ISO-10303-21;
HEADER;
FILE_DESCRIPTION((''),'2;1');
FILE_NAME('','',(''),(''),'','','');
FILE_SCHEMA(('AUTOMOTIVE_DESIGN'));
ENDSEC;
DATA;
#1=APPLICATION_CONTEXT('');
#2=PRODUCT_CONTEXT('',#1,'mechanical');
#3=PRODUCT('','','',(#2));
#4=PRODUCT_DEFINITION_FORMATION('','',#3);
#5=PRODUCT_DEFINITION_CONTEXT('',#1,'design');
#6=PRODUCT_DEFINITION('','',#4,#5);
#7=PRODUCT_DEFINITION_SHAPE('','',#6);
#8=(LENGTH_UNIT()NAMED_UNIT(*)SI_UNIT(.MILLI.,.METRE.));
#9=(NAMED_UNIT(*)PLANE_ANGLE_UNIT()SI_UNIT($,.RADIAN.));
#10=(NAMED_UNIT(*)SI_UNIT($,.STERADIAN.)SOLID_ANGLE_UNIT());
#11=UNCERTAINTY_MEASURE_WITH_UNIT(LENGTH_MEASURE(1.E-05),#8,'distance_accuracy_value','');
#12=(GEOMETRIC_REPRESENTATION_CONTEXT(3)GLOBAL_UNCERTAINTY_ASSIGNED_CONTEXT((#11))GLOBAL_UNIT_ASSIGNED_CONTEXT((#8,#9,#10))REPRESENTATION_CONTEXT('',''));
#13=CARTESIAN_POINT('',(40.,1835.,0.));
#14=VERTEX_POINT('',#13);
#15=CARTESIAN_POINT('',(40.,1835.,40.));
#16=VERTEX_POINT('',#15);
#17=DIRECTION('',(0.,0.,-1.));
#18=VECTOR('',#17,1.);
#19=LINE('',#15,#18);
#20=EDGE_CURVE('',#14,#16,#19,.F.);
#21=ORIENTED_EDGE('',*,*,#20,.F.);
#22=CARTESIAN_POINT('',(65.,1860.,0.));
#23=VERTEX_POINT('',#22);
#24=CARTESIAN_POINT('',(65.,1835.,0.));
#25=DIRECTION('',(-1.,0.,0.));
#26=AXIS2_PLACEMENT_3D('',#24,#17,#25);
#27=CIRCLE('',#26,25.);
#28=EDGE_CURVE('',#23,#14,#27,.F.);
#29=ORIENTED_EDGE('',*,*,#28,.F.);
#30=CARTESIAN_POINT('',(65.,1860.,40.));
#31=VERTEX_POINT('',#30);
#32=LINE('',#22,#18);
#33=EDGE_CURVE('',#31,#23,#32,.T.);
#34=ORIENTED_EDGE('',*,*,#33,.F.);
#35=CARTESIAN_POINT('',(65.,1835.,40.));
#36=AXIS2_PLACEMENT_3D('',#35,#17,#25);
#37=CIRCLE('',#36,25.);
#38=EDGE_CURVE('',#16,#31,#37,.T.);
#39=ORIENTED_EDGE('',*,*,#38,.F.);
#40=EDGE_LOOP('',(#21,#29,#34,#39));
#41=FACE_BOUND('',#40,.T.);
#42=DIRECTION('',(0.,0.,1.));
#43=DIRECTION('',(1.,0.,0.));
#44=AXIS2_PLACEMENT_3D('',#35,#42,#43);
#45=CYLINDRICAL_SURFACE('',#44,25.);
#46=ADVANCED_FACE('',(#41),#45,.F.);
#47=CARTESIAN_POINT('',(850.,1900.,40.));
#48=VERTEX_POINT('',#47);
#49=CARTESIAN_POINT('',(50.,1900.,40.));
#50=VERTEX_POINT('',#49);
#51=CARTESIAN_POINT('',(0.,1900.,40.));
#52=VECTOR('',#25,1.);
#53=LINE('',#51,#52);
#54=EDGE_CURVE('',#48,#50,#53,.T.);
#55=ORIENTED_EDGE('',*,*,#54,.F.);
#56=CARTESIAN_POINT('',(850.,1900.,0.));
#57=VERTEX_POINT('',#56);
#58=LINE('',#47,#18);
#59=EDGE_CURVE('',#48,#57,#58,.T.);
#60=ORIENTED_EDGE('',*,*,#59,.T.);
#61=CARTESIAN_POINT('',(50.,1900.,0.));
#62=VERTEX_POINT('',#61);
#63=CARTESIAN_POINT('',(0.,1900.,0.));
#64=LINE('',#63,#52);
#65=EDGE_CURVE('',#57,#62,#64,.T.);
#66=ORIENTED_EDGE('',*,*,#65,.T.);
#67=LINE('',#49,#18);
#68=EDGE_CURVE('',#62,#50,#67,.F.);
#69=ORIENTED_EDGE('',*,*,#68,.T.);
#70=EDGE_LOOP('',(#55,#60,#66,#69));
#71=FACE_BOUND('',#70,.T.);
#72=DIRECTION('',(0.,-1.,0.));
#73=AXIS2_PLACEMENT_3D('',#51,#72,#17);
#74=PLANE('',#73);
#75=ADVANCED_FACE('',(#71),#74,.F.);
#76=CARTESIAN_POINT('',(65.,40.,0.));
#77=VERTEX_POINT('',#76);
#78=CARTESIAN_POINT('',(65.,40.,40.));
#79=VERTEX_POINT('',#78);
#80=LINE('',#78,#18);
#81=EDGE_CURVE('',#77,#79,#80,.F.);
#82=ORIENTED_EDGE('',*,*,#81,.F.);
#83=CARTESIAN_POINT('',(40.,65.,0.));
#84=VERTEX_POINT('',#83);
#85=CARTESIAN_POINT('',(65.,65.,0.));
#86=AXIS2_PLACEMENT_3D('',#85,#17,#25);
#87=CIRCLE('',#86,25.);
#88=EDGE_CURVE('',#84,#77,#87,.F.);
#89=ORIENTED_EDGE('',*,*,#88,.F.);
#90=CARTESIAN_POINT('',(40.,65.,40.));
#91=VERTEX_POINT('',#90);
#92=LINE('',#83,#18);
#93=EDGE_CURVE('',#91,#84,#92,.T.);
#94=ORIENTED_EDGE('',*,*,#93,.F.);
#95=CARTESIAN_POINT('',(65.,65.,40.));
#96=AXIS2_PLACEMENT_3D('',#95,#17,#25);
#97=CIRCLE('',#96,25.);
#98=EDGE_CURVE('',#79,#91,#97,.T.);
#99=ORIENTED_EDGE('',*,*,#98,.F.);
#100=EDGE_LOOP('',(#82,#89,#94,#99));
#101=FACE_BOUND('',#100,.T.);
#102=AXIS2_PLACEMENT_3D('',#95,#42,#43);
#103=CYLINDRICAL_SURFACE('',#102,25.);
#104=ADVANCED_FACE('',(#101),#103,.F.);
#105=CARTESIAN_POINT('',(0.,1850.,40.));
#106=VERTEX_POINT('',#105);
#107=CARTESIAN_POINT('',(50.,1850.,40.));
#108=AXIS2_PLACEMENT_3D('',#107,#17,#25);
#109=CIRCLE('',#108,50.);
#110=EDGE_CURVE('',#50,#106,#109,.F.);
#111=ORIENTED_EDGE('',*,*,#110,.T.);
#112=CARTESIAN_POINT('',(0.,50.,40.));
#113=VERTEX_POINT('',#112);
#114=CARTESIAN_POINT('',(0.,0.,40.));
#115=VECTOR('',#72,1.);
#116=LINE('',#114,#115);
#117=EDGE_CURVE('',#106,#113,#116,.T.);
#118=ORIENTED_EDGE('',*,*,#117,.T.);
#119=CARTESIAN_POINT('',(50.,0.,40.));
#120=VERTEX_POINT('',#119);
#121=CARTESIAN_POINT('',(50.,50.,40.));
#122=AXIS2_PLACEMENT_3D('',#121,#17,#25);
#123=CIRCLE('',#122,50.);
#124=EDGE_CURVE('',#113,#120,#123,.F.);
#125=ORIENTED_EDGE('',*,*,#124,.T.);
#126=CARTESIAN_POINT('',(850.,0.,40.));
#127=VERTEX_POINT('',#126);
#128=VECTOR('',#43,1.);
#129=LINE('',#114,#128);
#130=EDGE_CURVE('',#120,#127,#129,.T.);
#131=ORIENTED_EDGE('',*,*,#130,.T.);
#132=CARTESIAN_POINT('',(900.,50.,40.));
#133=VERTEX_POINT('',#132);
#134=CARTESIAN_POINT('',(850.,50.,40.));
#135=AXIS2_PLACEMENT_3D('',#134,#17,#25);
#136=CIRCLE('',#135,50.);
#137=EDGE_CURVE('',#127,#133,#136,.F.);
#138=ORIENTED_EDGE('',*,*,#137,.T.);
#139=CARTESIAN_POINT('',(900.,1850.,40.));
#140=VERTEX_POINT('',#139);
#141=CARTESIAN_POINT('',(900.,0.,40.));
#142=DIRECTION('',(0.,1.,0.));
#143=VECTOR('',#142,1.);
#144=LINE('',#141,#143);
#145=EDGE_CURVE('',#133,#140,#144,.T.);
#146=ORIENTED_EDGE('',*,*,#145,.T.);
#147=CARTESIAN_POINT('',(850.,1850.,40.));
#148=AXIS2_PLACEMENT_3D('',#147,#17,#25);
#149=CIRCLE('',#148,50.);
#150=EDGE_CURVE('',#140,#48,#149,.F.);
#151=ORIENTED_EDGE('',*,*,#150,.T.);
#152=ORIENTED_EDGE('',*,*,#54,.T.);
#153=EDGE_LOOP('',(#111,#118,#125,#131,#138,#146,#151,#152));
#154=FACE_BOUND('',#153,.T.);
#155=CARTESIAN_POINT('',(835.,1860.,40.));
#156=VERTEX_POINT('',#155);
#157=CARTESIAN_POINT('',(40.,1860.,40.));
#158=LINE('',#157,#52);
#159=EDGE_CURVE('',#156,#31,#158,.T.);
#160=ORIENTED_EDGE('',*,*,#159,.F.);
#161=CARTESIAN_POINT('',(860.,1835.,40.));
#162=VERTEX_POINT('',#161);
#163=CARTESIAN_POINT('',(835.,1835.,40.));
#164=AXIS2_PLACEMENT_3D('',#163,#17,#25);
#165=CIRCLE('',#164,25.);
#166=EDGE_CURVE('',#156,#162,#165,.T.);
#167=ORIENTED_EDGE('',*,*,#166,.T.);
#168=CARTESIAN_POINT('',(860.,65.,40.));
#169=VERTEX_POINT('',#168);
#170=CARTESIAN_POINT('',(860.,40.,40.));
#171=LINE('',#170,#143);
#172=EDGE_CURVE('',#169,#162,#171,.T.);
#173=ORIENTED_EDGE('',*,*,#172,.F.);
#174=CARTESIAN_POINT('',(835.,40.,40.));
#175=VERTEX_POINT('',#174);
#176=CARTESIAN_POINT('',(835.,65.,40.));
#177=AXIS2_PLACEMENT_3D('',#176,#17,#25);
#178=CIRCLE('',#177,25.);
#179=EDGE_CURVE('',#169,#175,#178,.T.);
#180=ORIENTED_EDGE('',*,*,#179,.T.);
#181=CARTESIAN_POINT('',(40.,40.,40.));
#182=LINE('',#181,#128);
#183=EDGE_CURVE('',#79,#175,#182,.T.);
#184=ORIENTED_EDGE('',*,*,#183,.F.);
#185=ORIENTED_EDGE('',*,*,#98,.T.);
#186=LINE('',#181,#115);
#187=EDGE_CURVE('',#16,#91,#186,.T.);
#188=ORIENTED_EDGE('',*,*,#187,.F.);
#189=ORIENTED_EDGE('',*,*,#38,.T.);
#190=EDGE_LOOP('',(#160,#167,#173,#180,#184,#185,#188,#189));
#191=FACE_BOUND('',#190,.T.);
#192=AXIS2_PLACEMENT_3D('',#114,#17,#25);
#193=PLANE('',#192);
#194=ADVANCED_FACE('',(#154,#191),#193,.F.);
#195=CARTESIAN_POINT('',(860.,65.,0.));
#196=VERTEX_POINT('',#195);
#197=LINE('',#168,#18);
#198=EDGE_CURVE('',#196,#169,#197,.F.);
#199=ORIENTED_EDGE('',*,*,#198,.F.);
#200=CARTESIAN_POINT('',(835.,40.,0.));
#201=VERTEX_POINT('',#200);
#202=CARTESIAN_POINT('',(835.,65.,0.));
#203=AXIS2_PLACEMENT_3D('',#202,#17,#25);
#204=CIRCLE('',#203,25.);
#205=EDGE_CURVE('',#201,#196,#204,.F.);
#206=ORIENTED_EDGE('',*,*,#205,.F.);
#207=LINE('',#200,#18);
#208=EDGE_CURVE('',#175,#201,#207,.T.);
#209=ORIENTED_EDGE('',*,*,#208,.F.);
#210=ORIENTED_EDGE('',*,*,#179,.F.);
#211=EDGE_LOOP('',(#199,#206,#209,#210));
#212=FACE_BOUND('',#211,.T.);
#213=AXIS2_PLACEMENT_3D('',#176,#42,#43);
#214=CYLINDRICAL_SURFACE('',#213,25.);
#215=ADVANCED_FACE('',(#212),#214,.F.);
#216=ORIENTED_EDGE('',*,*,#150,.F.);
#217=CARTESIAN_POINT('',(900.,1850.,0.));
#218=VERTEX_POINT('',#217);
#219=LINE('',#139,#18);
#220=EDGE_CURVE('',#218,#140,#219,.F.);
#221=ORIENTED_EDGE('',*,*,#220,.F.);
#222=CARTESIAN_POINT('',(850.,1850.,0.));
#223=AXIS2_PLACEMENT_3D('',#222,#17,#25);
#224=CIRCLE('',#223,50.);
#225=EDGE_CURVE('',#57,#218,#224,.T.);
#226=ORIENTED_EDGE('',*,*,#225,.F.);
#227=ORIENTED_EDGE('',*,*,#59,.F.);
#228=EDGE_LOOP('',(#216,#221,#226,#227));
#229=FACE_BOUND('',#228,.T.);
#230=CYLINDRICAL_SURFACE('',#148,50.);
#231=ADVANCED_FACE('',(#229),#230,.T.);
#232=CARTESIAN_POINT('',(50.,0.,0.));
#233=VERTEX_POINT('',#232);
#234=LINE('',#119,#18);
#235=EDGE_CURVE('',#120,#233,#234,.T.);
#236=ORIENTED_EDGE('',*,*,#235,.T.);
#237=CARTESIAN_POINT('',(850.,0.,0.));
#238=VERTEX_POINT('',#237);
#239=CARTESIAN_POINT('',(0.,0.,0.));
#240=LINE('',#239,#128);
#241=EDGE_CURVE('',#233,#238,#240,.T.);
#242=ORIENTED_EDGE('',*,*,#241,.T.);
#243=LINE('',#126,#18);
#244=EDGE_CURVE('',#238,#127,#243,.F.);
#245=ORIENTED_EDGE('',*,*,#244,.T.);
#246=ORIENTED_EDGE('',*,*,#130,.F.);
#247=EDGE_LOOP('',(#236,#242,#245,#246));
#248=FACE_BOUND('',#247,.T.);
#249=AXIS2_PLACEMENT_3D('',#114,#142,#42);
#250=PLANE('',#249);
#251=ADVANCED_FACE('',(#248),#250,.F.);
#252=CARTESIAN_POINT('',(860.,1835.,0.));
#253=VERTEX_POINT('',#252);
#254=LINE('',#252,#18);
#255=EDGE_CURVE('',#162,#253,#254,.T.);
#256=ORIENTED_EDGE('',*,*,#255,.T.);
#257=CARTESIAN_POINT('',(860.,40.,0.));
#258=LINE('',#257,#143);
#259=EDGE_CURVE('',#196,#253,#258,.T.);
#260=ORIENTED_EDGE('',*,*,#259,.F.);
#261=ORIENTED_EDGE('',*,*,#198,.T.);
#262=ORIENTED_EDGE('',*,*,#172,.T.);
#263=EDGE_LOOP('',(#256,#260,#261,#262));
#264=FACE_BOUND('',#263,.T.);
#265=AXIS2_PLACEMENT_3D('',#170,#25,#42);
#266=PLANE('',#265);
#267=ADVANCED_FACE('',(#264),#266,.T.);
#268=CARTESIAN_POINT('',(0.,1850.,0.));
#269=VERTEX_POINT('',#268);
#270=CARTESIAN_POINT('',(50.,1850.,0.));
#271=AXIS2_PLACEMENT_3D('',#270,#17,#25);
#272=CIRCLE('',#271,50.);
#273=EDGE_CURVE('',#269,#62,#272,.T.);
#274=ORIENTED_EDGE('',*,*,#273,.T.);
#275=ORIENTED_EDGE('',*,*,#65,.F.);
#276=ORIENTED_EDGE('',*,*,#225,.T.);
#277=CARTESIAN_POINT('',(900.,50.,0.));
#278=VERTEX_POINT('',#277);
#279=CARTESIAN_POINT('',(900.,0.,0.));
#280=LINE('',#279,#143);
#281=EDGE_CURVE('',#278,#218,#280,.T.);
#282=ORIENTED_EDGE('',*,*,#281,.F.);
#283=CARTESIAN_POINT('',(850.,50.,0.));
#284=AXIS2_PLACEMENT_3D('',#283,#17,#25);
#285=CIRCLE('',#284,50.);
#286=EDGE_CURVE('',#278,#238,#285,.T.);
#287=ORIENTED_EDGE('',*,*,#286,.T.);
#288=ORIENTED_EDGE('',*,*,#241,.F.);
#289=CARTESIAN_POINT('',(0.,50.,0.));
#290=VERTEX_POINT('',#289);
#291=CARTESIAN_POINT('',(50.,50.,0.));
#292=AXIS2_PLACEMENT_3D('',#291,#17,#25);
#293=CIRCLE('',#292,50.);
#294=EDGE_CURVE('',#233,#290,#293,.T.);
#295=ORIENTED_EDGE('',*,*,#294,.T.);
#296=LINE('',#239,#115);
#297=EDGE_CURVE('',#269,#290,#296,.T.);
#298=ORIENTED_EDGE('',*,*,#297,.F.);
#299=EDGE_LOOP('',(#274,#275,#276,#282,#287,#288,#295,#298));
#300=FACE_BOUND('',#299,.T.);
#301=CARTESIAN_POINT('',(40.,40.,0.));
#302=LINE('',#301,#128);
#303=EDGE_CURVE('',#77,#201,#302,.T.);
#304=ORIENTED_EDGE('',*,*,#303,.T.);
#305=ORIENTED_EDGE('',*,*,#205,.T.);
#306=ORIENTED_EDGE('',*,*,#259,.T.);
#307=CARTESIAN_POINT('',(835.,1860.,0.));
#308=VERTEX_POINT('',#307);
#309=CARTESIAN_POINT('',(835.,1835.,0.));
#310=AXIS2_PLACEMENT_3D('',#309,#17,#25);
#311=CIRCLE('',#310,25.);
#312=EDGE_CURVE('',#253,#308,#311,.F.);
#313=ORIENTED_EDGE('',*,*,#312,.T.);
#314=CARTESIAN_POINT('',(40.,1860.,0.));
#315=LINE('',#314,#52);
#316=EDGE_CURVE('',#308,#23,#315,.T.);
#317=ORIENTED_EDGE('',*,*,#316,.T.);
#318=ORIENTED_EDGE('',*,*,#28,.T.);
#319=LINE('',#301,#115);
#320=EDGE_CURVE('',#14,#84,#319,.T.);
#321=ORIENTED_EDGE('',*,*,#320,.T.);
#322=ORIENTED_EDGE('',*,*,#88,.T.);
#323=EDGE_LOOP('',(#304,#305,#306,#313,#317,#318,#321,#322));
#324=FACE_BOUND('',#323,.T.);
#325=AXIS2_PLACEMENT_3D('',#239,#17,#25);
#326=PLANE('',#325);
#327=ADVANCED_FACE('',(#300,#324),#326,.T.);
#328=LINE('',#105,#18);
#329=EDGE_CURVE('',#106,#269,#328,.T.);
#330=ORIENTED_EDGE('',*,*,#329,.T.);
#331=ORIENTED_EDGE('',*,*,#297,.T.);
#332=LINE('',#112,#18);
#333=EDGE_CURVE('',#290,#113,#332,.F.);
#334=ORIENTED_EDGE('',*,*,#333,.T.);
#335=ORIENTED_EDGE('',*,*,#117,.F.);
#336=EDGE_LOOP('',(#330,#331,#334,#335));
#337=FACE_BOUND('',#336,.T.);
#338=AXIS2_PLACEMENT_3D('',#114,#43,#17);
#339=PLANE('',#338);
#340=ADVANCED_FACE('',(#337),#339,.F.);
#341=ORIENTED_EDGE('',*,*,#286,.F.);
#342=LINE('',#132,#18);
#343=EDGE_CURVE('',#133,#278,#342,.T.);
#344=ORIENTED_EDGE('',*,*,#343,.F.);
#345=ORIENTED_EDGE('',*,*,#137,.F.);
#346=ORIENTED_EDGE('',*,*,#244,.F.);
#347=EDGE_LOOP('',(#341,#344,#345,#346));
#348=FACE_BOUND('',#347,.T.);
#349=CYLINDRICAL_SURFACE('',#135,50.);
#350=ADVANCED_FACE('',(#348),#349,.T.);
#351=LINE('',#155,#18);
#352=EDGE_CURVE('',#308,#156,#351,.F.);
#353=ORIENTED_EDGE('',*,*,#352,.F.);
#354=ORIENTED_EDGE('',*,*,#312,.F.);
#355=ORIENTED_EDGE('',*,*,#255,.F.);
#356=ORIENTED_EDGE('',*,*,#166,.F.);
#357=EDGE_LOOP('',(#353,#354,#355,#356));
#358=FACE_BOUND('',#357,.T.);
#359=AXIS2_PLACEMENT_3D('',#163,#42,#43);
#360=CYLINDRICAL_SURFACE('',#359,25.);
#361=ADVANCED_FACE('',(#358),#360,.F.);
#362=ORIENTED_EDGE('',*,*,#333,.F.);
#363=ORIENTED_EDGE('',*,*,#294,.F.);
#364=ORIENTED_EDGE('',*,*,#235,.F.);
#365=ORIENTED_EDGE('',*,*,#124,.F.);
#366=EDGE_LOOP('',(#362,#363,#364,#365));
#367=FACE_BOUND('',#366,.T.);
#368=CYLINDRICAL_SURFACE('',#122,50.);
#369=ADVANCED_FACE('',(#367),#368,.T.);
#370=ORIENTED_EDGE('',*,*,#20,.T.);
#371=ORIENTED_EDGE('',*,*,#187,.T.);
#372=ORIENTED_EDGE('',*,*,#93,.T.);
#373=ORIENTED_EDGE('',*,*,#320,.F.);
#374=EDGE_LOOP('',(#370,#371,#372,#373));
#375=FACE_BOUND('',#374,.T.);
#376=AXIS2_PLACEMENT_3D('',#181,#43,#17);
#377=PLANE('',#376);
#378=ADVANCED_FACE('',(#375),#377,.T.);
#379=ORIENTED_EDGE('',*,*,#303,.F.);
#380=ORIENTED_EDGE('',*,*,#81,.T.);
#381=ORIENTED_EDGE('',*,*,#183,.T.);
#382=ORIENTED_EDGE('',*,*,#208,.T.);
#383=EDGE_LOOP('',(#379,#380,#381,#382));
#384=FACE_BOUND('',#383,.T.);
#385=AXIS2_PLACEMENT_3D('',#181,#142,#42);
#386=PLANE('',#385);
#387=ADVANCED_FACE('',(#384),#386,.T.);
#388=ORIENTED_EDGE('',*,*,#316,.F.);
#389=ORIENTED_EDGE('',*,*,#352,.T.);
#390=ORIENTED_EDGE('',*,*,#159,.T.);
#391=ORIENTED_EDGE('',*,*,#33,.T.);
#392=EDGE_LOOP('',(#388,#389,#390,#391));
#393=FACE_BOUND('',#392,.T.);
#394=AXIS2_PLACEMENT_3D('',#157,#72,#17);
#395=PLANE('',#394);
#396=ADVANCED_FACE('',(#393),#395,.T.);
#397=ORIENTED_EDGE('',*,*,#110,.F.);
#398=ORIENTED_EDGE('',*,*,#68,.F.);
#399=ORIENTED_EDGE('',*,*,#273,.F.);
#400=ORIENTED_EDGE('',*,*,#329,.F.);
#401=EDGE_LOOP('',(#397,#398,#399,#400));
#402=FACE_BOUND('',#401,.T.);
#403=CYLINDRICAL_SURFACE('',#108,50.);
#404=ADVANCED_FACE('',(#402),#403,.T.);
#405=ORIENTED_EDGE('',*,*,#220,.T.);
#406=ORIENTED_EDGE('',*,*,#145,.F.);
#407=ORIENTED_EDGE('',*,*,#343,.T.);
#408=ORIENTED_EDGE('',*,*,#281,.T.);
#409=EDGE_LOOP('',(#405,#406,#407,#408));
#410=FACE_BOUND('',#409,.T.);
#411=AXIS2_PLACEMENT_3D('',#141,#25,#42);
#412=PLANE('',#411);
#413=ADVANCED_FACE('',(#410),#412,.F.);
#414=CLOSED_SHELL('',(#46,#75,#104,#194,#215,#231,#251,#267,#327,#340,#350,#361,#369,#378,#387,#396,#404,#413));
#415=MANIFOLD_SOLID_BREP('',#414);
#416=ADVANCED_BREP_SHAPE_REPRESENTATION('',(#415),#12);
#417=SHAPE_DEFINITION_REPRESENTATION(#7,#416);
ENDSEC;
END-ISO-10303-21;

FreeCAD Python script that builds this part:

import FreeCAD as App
import Part
import Sketcher

V = App.Vector
Q = App.Units.Quantity


def edges_at(feature, points):
    """Names of the edges that pass closest to the given points."""
    edges = feature.Shape.Edges
    near = lambda p: min(range(len(edges)), key=lambda i: edges[i].distToShape(Part.Vertex(*p))[0])
    return sorted({f"Edge{near(p) + 1}" for p in points})

doc = App.newDocument("Part")
body = doc.addObject("PartDesign::Body", "Body")

sketch1 = body.newObject("Sketcher::SketchObject", "Sketch")
sketch1.AttachmentSupport = (doc.getObject("XY_Plane"), [""])
sketch1.MapMode = "FlatFace"
sketch1.addGeometry(Part.LineSegment(V(0, 1900, 0), V(0, 0, 0)), False)
sketch1.addGeometry(Part.LineSegment(V(0, 0, 0), V(900, 0, 0)), False)
sketch1.addGeometry(Part.LineSegment(V(900, 0, 0), V(900, 1900, 0)), False)
sketch1.addGeometry(Part.LineSegment(V(900, 1900, 0), V(0, 1900, 0)), False)
sketch1.addGeometry(Part.LineSegment(V(860, 40, 0), V(40, 40, 0)), False)
sketch1.addGeometry(Part.LineSegment(V(40, 40, 0), V(40, 1860, 0)), False)
sketch1.addGeometry(Part.LineSegment(V(40, 1860, 0), V(860, 1860, 0)), False)
sketch1.addGeometry(Part.LineSegment(V(860, 1860, 0), V(860, 40, 0)), False)
sketch1.addConstraint(Sketcher.Constraint("Coincident", 0, 2, 1, 1))
sketch1.addConstraint(Sketcher.Constraint("Coincident", 1, 2, 2, 1))
sketch1.addConstraint(Sketcher.Constraint("Coincident", 2, 2, 3, 1))
sketch1.addConstraint(Sketcher.Constraint("Coincident", 3, 2, 0, 1))
sketch1.addConstraint(Sketcher.Constraint("Coincident", 4, 2, 5, 1))
sketch1.addConstraint(Sketcher.Constraint("Coincident", 5, 2, 6, 1))
sketch1.addConstraint(Sketcher.Constraint("Coincident", 6, 2, 7, 1))
sketch1.addConstraint(Sketcher.Constraint("Coincident", 7, 2, 4, 1))
sketch1.addConstraint(Sketcher.Constraint("Vertical", 0))
sketch1.addConstraint(Sketcher.Constraint("Horizontal", 1))
sketch1.addConstraint(Sketcher.Constraint("Vertical", 2))
sketch1.addConstraint(Sketcher.Constraint("Horizontal", 3))
sketch1.addConstraint(Sketcher.Constraint("Horizontal", 4))
sketch1.addConstraint(Sketcher.Constraint("Vertical", 5))
sketch1.addConstraint(Sketcher.Constraint("Horizontal", 6))
sketch1.addConstraint(Sketcher.Constraint("Vertical", 7))
sketch1.addConstraint(Sketcher.Constraint("Coincident", 0, 2, -1, 1))
sketch1.addConstraint(Sketcher.Constraint("DistanceX", 1, 1, 1, 2, Q("900 mm")))
sketch1.addConstraint(Sketcher.Constraint("DistanceX", 4, 2, 4, 1, Q("820 mm")))
sketch1.addConstraint(Sketcher.Constraint("DistanceY", 0, 2, 0, 1, Q("1900 mm")))
sketch1.addConstraint(Sketcher.Constraint("DistanceY", 5, 1, 5, 2, Q("1820 mm")))
sketch1.addConstraint(Sketcher.Constraint("DistanceX", -1, 1, 4, 2, Q("40 mm")))
sketch1.addConstraint(Sketcher.Constraint("DistanceY", -1, 1, 4, 2, Q("40 mm")))
pad1 = body.newObject("PartDesign::Pad", "Pad")
pad1.Profile = sketch1
pad1.Length = 40
doc.recompute()

fillet = body.newObject("PartDesign::Fillet", "Fillet")
fillet.Base = (pad1, edges_at(pad1, [
    (0, 1900, 20),
    (900, 1900, 20),
    (900, 0, 20),
    (0, 0, 20),
]))
fillet.Radius = 50
doc.recompute()

fillet2 = body.newObject("PartDesign::Fillet", "Fillet001")
fillet2.Base = (fillet, edges_at(fillet, [
    (40, 1860, 20),
    (40, 40, 20),
    (860, 40, 20),
    (860, 1860, 20),
]))
fillet2.Radius = 25

doc.recompute()
